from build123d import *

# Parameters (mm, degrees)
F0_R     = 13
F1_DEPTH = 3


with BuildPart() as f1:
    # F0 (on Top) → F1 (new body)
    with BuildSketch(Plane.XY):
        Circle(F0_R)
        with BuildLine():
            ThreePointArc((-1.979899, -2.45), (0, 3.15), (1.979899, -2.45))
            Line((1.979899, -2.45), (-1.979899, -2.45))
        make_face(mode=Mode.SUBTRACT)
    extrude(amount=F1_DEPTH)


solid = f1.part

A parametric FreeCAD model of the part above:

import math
import FreeCAD as App
import Part
import Sketcher
from FreeCAD import Vector
Q = App.Units.Quantity

doc = App.newDocument("Part")
body = doc.addObject("PartDesign::Body", "Body")

sketch1 = doc.addObject("Sketcher::SketchObject", "Sketch")
body.addObject(sketch1)
sketch1.AttachmentSupport = (doc.XY_Plane, [""])
sketch1.MapMode = "FlatFace"
sketch1.addGeometry([
    Part.Circle(Vector(0, 0, 0), Vector(0, 0, 1), 13),
    Part.LineSegment(Vector(2, -2.5, 0), Vector(-2, -2.5, 0)),
    Part.ArcOfCircle(Part.Circle(Vector(0, 0, 0), Vector(0, 0, 1), 3.2), math.radians(-51), math.radians(231)),
], False)
sketch1.addConstraint([
    Sketcher.Constraint("Coincident", 1, 1, 2, 1),
    Sketcher.Constraint("Coincident", 2, 2, 1, 2),
    Sketcher.Constraint("Horizontal", 1),
    Sketcher.Constraint("Coincident", 0, 3, -1, 1),
    Sketcher.Constraint("Coincident", 2, 3, -1, 1),
    Sketcher.Constraint("Diameter", 0, Q("26 mm")),
    Sketcher.Constraint("Radius", 2, Q("3.15 mm")),
    Sketcher.Constraint("DistanceY", 1, 1, -1, 1, Q("2.45 mm")),
])
pad1 = doc.addObject("PartDesign::Pad", "Pad")
body.addObject(pad1)
pad1.Profile = sketch1
pad1.Length = 3

doc.recompute()
